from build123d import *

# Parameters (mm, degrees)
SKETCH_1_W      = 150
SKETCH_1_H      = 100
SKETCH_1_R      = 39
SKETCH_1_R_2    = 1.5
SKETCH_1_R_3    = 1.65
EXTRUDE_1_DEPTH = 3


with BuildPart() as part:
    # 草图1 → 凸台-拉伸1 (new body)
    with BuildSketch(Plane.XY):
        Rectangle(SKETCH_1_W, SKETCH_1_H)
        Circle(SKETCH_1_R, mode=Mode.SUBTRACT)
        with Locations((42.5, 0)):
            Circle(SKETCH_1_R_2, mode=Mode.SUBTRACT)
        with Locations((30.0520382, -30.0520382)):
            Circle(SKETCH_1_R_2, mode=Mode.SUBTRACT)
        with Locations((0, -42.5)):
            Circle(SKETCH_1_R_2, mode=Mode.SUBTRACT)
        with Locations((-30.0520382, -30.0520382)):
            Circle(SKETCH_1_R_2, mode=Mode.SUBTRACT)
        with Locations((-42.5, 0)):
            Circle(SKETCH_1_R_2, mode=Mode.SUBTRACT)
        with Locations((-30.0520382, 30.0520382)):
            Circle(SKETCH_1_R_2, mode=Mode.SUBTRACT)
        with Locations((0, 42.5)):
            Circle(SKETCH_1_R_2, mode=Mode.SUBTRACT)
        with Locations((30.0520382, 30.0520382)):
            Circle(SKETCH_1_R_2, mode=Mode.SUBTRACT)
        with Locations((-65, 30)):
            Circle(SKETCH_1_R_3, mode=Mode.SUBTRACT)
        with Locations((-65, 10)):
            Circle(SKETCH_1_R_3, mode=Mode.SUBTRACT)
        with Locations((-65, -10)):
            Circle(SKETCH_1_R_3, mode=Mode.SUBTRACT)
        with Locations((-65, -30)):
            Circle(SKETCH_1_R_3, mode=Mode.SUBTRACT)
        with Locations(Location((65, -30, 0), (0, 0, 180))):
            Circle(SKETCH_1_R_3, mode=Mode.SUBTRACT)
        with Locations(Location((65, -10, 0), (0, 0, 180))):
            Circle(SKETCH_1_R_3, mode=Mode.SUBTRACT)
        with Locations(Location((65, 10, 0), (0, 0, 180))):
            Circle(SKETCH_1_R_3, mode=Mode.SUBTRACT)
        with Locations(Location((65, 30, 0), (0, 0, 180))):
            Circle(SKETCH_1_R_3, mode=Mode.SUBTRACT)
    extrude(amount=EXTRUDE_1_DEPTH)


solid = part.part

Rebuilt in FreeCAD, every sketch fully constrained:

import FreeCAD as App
import Part
import Sketcher
from FreeCAD import Vector


def add_polygon(sketch, points):
    """Adds a closed chain of lines whose ends are joined by coincident constraints."""
    first, n = sketch.GeometryCount, len(points)
    for a, b in zip(points, points[1:] + points[:1]):
        sketch.addGeometry(Part.LineSegment(App.Vector(*a, 0), App.Vector(*b, 0)), False)
    for i in range(n):
        sketch.addConstraint(Sketcher.Constraint("Coincident", first + i, 2, first + (i + 1) % n, 1))

doc = App.newDocument("Part")
body = doc.addObject("PartDesign::Body", "Body")

sketch1 = body.newObject("Sketcher::SketchObject", "Sketch")
sketch1.AttachmentSupport = (doc.getObject("XY_Plane"), [""])
sketch1.MapMode = "FlatFace"
add_polygon(sketch1, [(-75, 50), (-75, -50), (75, -50), (75, 50)])
sketch1.addGeometry(Part.Circle(Vector(-65, -30, 0), Vector(0, 0, 1), 1.6), False)
sketch1.addGeometry(Part.Circle(Vector(-30.1, -30.1, 0), Vector(0, 0, 1), 1.5), False)
sketch1.addGeometry(Part.Circle(Vector(-65, -10, 0), Vector(0, 0, 1), 1.6), False)
sketch1.addGeometry(Part.Circle(Vector(0, -42.5, 0), Vector(0, 0, 1), 1.5), False)
sketch1.addGeometry(Part.Circle(Vector(30.1, -30.1, 0), Vector(0, 0, 1), 1.5), False)
sketch1.addGeometry(Part.Circle(Vector(65, -30, 0), Vector(0, 0, 1), 1.6), False)
sketch1.addGeometry(Part.Circle(Vector(65, -10, 0), Vector(0, 0, 1), 1.6), False)
sketch1.addGeometry(Part.Circle(Vector(-65, 10, 0), Vector(0, 0, 1), 1.6), False)
sketch1.addGeometry(Part.Circle(Vector(-42.5, 0, 0), Vector(0, 0, 1), 1.5), False)
sketch1.addGeometry(Part.Circle(Vector(-65, 30, 0), Vector(0, 0, 1), 1.6), False)
sketch1.addGeometry(Part.Circle(Vector(-30.1, 30.1, 0), Vector(0, 0, 1), 1.5), False)
sketch1.addGeometry(Part.Circle(Vector(0, 0, 0), Vector(0, 0, 1), 39), False)
sketch1.addGeometry(Part.Circle(Vector(42.5, 0, 0), Vector(0, 0, 1), 1.5), False)
sketch1.addGeometry(Part.Circle(Vector(65, 10, 0), Vector(0, 0, 1), 1.6), False)
sketch1.addGeometry(Part.Circle(Vector(30.1, 30.1, 0), Vector(0, 0, 1), 1.5), False)
sketch1.addGeometry(Part.Circle(Vector(0, 42.5, 0), Vector(0, 0, 1), 1.5), False)
sketch1.addGeometry(Part.Circle(Vector(65, 30, 0), Vector(0, 0, 1), 1.6), False)
sketch1.addConstraint([
    Sketcher.Constraint("Vertical", 0),
    Sketcher.Constraint("Horizontal", 1),
    Sketcher.Constraint("Vertical", 2),
    Sketcher.Constraint("Horizontal", 3),
    Sketcher.Constraint("Coincident", 15, 3, -1, 1),
    Sketcher.Constraint("Equal", 4, 6),
    Sketcher.Constraint("Equal", 5, 7),
    Sketcher.Constraint("Equal", 7, 8),
    Sketcher.Constraint("Equal", 6, 9),
    Sketcher.Constraint("Equal", 9, 10),
    Sketcher.Constraint("Equal", 10, 11),
    Sketcher.Constraint("Equal", 8, 12),
    Sketcher.Constraint("Equal", 11, 13),
    Sketcher.Constraint("Equal", 12, 14),
    Sketcher.Constraint("Equal", 14, 16),
    Sketcher.Constraint("Equal", 13, 17),
    Sketcher.Constraint("Equal", 16, 18),
    Sketcher.Constraint("Equal", 18, 19),
    Sketcher.Constraint("Equal", 17, 20),
    Sketcher.Constraint("Symmetric", 10, 3, 11, 3, -1, 1),
    Sketcher.Constraint("Symmetric", 9, 3, 13, 3, -1, 1),
    Sketcher.Constraint("Symmetric", 8, 3, 14, 3, -1, 1),
    Sketcher.Constraint("Symmetric", 12, 3, 16, 3, -1, 1),
    Sketcher.Constraint("Symmetric", 6, 3, 17, 3, -1, 1),
    Sketcher.Constraint("Symmetric", 5, 3, 18, 3, -1, 1),
    Sketcher.Constraint("Symmetric", 7, 3, 19, 3, -1, 1),
    Sketcher.Constraint("Symmetric", 4, 3, 20, 3, -1, 1),
    Sketcher.Constraint("Symmetric", 0, 2, 2, 2, -1, 1),
    Sketcher.Constraint("Symmetric", 5, 3, 8, 3, -2),
    Sketcher.Constraint("Symmetric", 4, 3, 9, 3, -2),
    Sketcher.Constraint("Symmetric", 6, 3, 10, 3, -2),
    Sketcher.Constraint("PointOnObject", 7, 3, -2),
    Sketcher.Constraint("PointOnObject", 12, 3, -1),
    Sketcher.Constraint("Vertical", 4, 3, 6, 3),
    Sketcher.Constraint("Diameter", 5, 3.0),
    Sketcher.Constraint("Diameter", 15, 78.0),
    Sketcher.Constraint("Diameter", 4, 3.3),
    Sketcher.Constraint("DistanceX", 1, 1, 1, 2, 150.0),
    Sketcher.Constraint("DistanceY", 0, 2, 0, 1, 100.0),
    Sketcher.Constraint("DistanceX", 4, 3, -1, 1, 65.0),
    Sketcher.Constraint("DistanceY", 4, 3, -1, 1, 30.0),
    Sketcher.Constraint("DistanceY", 6, 3, -1, 1, 10.0),
    Sketcher.Constraint("DistanceY", 7, 3, -1, 1, 42.5),
    Sketcher.Constraint("DistanceX", 12, 3, -1, 1, 42.5),
    Sketcher.Constraint("DistanceX", 5, 3, -1, 1, 30.052038),
    Sketcher.Constraint("DistanceY", 5, 3, -1, 1, 30.052038),
])
pad1 = body.newObject("PartDesign::Pad", "Pad")
pad1.Profile = sketch1
pad1.Length = 3

doc.recompute()
